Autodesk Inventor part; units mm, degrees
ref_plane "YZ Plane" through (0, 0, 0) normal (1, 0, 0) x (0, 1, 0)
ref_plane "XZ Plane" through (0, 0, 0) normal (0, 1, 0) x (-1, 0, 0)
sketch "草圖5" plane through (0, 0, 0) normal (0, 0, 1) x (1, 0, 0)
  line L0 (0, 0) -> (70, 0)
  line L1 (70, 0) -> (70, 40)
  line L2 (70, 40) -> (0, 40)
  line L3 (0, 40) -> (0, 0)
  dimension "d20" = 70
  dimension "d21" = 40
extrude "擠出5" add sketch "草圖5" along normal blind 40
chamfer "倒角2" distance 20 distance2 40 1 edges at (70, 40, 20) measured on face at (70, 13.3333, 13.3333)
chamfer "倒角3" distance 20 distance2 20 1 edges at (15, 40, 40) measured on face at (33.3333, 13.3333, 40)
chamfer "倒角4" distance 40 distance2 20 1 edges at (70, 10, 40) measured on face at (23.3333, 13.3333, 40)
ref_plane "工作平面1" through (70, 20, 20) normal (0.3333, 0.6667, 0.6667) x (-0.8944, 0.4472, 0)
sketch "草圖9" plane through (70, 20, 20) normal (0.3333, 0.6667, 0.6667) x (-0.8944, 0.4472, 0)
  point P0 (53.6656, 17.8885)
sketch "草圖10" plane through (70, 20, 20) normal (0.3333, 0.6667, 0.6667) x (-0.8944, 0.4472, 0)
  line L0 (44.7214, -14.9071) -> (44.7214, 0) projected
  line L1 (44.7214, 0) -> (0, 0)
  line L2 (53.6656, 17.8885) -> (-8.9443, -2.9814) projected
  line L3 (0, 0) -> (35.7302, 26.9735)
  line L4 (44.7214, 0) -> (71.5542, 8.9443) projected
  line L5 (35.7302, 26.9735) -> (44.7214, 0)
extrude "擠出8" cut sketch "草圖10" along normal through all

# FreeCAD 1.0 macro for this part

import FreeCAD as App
import Part
import Sketcher

V = App.Vector
Q = App.Units.Quantity


def edges_at(feature, points):
    """Names of the edges that pass closest to the given points."""
    edges = feature.Shape.Edges
    near = lambda p: min(range(len(edges)), key=lambda i: edges[i].distToShape(Part.Vertex(*p))[0])
    return sorted({f"Edge{near(p) + 1}" for p in points})


def add_polygon(sketch, points):
    """Adds a closed chain of lines whose ends are joined by coincident constraints."""
    first, n = sketch.GeometryCount, len(points)
    for a, b in zip(points, points[1:] + points[:1]):
        sketch.addGeometry(Part.LineSegment(App.Vector(*a, 0), App.Vector(*b, 0)), False)
    for i in range(n):
        sketch.addConstraint(Sketcher.Constraint("Coincident", first + i, 2, first + (i + 1) % n, 1))

doc = App.newDocument("Part")
body = doc.addObject("PartDesign::Body", "Body")

# Sketch on XY plane
sketch1 = body.newObject("Sketcher::SketchObject", "Sketch")
sketch1.AttachmentSupport = (doc.getObject("XY_Plane"), [""])
sketch1.MapMode = "FlatFace"
add_polygon(sketch1, [(0, 40), (0, 0), (70, 0), (70, 40)])  # lines 0-3
sketch1.addConstraint(Sketcher.Constraint("Vertical", 0))
sketch1.addConstraint(Sketcher.Constraint("Horizontal", 1))
sketch1.addConstraint(Sketcher.Constraint("Vertical", 2))
sketch1.addConstraint(Sketcher.Constraint("Horizontal", 3))
sketch1.addConstraint(Sketcher.Constraint("Coincident", 0, 2, -1, 1))
sketch1.addConstraint(Sketcher.Constraint("DistanceX", 1, 1, 1, 2, Q("70 mm")))
sketch1.addConstraint(Sketcher.Constraint("DistanceY", 0, 2, 0, 1, Q("40 mm")))
pad1 = body.newObject("PartDesign::Pad", "Pad")
pad1.Profile = sketch1
pad1.Length = 40
doc.recompute()

chamfer = body.newObject("PartDesign::Chamfer", "Chamfer")
chamfer.Base = (pad1, edges_at(pad1, [(70, 40, 20)]))
chamfer.ChamferType = "Two distances"
chamfer.Size = 20
chamfer.Size2 = 40
doc.recompute()

chamfer2 = body.newObject("PartDesign::Chamfer", "Chamfer001")
chamfer2.Base = (chamfer, edges_at(chamfer, [(15, 40, 40)]))
chamfer2.ChamferType = "Two distances"
chamfer2.Size = 20
chamfer2.Size2 = 20
doc.recompute()

chamfer3 = body.newObject("PartDesign::Chamfer", "Chamfer002")
chamfer3.Base = (chamfer2, edges_at(chamfer2, [(70, 10, 40)]))
chamfer3.ChamferType = "Two distances"
chamfer3.Size = 40
chamfer3.Size2 = 20
chamfer3.FlipDirection = True

# Sketch on an angled plane
sketch2 = body.newObject("Sketcher::SketchObject", "Sketch001")
sketch2.Placement = App.Placement(V(70, 20, 20), App.Rotation(V(-0.894442097, 0.447183782, -0.000029814), V(-0.298147366, -0.596294732, 0.745346055), V(0.33328889, 0.666677777, 0.666677777), "ZXY"))
add_polygon(sketch2, [(0, 0), (45, 0), (36, 27)])  # lines 0-2
sketch2.addConstraint(Sketcher.Constraint("Horizontal", 0))
sketch2.addConstraint(Sketcher.Constraint("Coincident", 2, 2, -1, 1))
sketch2.addConstraint(Sketcher.Constraint("Angle", 2, Q("-142.95 deg")))
sketch2.addConstraint(Sketcher.Constraint("DistanceX", 0, 1, 0, 2, Q("44.7214 mm")))
sketch2.addConstraint(Sketcher.Constraint("Distance", 1, Q("28.4326 mm")))
pocket1 = body.newObject("PartDesign::Pocket", "Pocket")
pocket1.Profile = sketch2
pocket1.Type = "ThroughAll"
pocket1.Reversed = True

doc.recompute()
